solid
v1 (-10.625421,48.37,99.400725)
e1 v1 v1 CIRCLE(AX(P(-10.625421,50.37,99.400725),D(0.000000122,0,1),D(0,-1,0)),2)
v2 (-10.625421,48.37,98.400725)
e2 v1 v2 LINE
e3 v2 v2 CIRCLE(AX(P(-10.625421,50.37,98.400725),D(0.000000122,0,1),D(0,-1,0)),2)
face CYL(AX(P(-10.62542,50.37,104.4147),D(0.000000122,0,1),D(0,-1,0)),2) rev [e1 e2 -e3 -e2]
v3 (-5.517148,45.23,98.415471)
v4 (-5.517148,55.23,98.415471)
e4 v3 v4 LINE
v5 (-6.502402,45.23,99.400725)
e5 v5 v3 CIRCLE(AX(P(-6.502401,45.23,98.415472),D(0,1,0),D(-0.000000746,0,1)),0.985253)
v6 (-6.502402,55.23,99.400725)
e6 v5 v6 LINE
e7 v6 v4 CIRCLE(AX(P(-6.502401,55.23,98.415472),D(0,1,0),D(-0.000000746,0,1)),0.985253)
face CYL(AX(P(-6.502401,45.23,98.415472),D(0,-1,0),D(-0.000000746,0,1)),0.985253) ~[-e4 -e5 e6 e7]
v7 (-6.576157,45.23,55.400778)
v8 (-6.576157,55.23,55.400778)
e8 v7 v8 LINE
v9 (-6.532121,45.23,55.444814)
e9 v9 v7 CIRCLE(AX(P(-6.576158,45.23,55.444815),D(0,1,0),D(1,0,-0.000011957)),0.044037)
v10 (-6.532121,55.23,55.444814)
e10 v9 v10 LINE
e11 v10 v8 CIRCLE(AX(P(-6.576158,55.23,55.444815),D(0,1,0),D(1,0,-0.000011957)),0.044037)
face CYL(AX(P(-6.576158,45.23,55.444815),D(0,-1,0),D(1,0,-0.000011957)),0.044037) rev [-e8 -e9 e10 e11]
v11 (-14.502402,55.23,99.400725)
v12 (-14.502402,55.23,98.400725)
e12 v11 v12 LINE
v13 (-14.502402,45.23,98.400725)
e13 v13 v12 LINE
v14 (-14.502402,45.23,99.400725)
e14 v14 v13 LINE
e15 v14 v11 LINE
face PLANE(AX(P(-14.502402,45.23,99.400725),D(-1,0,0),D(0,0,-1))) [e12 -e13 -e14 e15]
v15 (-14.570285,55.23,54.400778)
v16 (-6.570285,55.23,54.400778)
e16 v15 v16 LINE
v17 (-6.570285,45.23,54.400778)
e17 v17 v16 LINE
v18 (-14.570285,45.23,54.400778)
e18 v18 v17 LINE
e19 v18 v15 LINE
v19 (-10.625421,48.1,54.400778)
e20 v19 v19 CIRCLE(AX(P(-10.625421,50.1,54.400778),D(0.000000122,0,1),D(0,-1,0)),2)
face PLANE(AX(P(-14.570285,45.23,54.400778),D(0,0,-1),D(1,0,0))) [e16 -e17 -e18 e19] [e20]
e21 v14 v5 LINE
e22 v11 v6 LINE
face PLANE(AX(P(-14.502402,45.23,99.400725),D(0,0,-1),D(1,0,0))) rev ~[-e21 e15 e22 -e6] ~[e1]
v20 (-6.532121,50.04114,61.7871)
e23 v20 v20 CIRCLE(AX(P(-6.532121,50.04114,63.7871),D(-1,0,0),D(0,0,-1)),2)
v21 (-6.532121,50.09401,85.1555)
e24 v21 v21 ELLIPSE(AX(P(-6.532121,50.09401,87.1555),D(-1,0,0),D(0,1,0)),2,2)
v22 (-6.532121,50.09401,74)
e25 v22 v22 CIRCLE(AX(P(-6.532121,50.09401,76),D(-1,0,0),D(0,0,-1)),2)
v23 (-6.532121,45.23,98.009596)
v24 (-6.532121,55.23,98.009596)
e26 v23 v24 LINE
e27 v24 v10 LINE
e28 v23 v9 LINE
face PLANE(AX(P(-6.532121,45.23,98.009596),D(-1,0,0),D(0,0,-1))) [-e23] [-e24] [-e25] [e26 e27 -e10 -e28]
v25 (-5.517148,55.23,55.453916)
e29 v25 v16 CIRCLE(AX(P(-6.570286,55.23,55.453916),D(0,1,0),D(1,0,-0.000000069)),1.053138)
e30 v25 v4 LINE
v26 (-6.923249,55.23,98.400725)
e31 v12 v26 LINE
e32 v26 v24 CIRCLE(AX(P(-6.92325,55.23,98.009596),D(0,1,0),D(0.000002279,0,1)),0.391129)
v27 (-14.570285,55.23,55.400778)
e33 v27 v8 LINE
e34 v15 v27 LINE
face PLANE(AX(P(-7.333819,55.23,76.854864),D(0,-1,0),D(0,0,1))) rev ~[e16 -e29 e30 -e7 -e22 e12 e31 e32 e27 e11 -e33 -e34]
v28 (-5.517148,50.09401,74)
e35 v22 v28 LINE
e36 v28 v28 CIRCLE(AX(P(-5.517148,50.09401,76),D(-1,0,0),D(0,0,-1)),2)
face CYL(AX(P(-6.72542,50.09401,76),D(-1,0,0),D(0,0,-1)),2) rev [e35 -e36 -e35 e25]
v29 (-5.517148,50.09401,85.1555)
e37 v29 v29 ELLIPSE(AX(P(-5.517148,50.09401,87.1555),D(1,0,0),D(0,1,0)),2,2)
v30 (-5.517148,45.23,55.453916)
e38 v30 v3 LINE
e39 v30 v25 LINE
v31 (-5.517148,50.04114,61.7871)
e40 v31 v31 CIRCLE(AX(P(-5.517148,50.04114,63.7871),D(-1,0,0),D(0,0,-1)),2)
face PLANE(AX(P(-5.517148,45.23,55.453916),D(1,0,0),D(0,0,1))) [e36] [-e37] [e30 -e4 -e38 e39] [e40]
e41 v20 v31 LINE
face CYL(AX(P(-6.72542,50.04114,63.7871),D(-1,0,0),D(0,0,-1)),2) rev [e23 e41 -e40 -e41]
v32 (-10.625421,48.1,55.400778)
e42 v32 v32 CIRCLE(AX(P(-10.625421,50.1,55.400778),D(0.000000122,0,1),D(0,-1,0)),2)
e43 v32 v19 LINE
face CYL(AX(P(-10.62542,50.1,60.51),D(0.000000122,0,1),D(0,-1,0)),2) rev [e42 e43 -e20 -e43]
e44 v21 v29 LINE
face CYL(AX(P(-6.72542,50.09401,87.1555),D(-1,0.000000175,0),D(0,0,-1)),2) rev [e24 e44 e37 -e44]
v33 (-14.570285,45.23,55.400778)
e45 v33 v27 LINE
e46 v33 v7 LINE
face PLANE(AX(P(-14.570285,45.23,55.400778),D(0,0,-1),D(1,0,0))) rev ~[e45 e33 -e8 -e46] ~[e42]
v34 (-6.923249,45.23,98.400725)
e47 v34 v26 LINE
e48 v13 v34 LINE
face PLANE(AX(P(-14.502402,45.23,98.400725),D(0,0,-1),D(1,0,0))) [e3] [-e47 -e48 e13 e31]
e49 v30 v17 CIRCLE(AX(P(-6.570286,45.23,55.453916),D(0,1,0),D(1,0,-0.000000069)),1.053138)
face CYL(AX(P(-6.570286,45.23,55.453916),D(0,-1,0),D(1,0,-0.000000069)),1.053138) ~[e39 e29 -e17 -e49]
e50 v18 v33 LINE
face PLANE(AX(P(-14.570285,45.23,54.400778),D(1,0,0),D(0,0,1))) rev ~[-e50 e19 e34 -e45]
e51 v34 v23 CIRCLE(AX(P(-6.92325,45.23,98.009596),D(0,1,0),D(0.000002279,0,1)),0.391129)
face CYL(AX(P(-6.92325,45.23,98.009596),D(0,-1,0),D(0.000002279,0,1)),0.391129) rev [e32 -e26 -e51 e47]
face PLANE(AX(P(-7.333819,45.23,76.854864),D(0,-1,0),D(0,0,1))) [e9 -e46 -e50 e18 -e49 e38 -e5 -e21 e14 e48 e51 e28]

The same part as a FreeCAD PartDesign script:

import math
import FreeCAD as App
import Part
import Sketcher

V = App.Vector

doc = App.newDocument("Part")
body = doc.addObject("PartDesign::Body", "Body")

sketch1 = doc.addObject("Sketcher::SketchObject", "Sketch")
body.addObject(sketch1)
sketch1.AttachmentSupport = (doc.XY_Plane, [""])
sketch1.MapMode = "FlatFace"
sketch1.addGeometry(Part.Circle(V(0, 0, 0), V(0, 0, 1), 2), False)
sketch1.addConstraint(Sketcher.Constraint("Coincident", 0, 3, -1, 1))
sketch1.addConstraint(Sketcher.Constraint("Diameter", 0, 4.0))
pad1 = doc.addObject("PartDesign::Pad", "Pad")
body.addObject(pad1)
pad1.Profile = sketch1
pad1.Length = 10
body2 = doc.addObject("PartDesign::Body", "Body001")
doc.recompute()

body.Placement = App.Placement(V(0, 0, 0), App.Rotation(V(0, 1, 0), 90))
boolean = doc.addObject("PartDesign::Boolean", "Boolean")
body2.addObject(boolean)
boolean.Type = "Fuse"
boolean.addObjects([body])
body3 = doc.addObject("PartDesign::Body", "Body002")
doc.recompute()

body2.Placement = App.Placement(V(15.49, 3.9, 4.87), App.Rotation(V(0, 0, 1), 0.000007))
boolean2 = doc.addObject("PartDesign::Boolean", "Boolean001")
body3.addObject(boolean2)
boolean2.Type = "Fuse"
boolean2.addObjects([body2])
body4 = doc.addObject("PartDesign::Body", "Body003")

sketch2 = doc.addObject("Sketcher::SketchObject", "Sketch001")
body4.addObject(sketch2)
sketch2.AttachmentSupport = (doc.getObject("XY_Plane003"), [""])
sketch2.MapMode = "FlatFace"
sketch2.addGeometry(Part.Circle(V(0, 0, 0), V(0, 0, 1), 2), False)
sketch2.addConstraint(Sketcher.Constraint("Coincident", 0, 3, -1, 1))
sketch2.addConstraint(Sketcher.Constraint("Diameter", 0, 4.0))
pad2 = doc.addObject("PartDesign::Pad", "Pad001")
body4.addObject(pad2)
pad2.Profile = sketch2
pad2.Length = 10
body5 = doc.addObject("PartDesign::Body", "Body004")
doc.recompute()

body4.Placement = App.Placement(V(0, 0, 0), App.Rotation(V(0, 1, 0), 90))
boolean3 = doc.addObject("PartDesign::Boolean", "Boolean002")
body5.addObject(boolean3)
boolean3.Type = "Fuse"
boolean3.addObjects([body4])
body6 = doc.addObject("PartDesign::Body", "Body005")
doc.recompute()

body5.Placement = App.Placement(V(-28.4147, 3.9, 5.14), App.Rotation(V(0, 0, 1), 0.000007))
boolean4 = doc.addObject("PartDesign::Boolean", "Boolean003")
body6.addObject(boolean4)
boolean4.Type = "Fuse"
boolean4.addObjects([body5])
body7 = doc.addObject("PartDesign::Body", "Body006")

sketch3 = doc.addObject("Sketcher::SketchObject", "Sketch002")
body7.addObject(sketch3)
sketch3.AttachmentSupport = (doc.getObject("XY_Plane006"), [""])
sketch3.MapMode = "FlatFace"
sketch3.addGeometry(Part.Circle(V(0, 0, 0), V(0, 0, 1), 2), False)
sketch3.addConstraint(Sketcher.Constraint("Coincident", 0, 3, -1, 1))
sketch3.addConstraint(Sketcher.Constraint("Diameter", 0, 4.0))
pad3 = doc.addObject("PartDesign::Pad", "Pad002")
body7.addObject(pad3)
pad3.Profile = sketch3
pad3.Length = 2
body8 = doc.addObject("PartDesign::Body", "Body007")
doc.recompute()

body7.Placement = App.Placement(V(0, 0, 0), App.Rotation(V(1, 0, 0), 271.492946))
boolean5 = doc.addObject("PartDesign::Boolean", "Boolean004")
body8.addObject(boolean5)
boolean5.Type = "Fuse"
boolean5.addObjects([body7])
body9 = doc.addObject("PartDesign::Body", "Body008")
doc.recompute()

body8.Placement = App.Placement(V(0, 0, 0), App.Rotation(V(0, 1, 0), 272.98249))
boolean6 = doc.addObject("PartDesign::Boolean", "Boolean005")
body9.addObject(boolean6)
boolean6.Type = "Fuse"
boolean6.addObjects([body8])
body10 = doc.addObject("PartDesign::Body", "Body009")
doc.recompute()

body9.Placement = App.Placement(V(-26, 5.29, 4.9), App.Rotation(V(0, 0, 1), 267.755985))
boolean7 = doc.addObject("PartDesign::Boolean", "Boolean006")
body10.addObject(boolean7)
boolean7.Type = "Fuse"
boolean7.addObjects([body9])
body11 = doc.addObject("PartDesign::Body", "Body010")

sketch4 = doc.addObject("Sketcher::SketchObject", "Sketch003")
body11.addObject(sketch4)
sketch4.AttachmentSupport = (doc.getObject("XY_Plane010"), [""])
sketch4.MapMode = "FlatFace"
sketch4.addGeometry(Part.Circle(V(0, 0, 0), V(0, 0, 1), 2), False)
sketch4.addConstraint(Sketcher.Constraint("Coincident", 0, 3, -1, 1))
sketch4.addConstraint(Sketcher.Constraint("Diameter", 0, 4.0))
pad4 = doc.addObject("PartDesign::Pad", "Pad003")
body11.addObject(pad4)
pad4.Profile = sketch4
pad4.Length = 2
body12 = doc.addObject("PartDesign::Body", "Body011")
doc.recompute()

body11.Placement = App.Placement(V(-11.1555, 0, 4.86401), App.Rotation(V(1, 0, 0), 90.00001))
boolean8 = doc.addObject("PartDesign::Boolean", "Boolean007")
body12.addObject(boolean8)
boolean8.Type = "Fuse"
boolean8.addObjects([body11])
body13 = doc.addObject("PartDesign::Body", "Body012")

sketch5 = doc.addObject("Sketcher::SketchObject", "Sketch004")
body13.addObject(sketch5)
sketch5.AttachmentSupport = (doc.getObject("XY_Plane012"), [""])
sketch5.MapMode = "FlatFace"
sketch5.addGeometry(Part.Circle(V(0, 0, 0), V(0, 0, 1), 2), False)
sketch5.addConstraint(Sketcher.Constraint("Coincident", 0, 3, -1, 1))
sketch5.addConstraint(Sketcher.Constraint("Diameter", 0, 4.0))
pad5 = doc.addObject("PartDesign::Pad", "Pad004")
body13.addObject(pad5)
pad5.Profile = sketch5
pad5.Length = 2
body14 = doc.addObject("PartDesign::Body", "Body013")
doc.recompute()

body13.Placement = App.Placement(V(0, 0, 0), App.Rotation(V(1, 0, 0), 90))
boolean9 = doc.addObject("PartDesign::Boolean", "Boolean008")
body14.addObject(boolean9)
boolean9.Type = "Fuse"
boolean9.addObjects([body13])
body15 = doc.addObject("PartDesign::Body", "Body014")
doc.recompute()

body14.Placement = App.Placement(V(0, 0, 4.86401), App.Rotation(V(0, 0, 1), 0))
boolean10 = doc.addObject("PartDesign::Boolean", "Boolean009")
body15.addObject(boolean10)
boolean10.Type = "Fuse"
boolean10.addObjects([body14])
body16 = doc.addObject("PartDesign::Body", "Body015")

sketch6 = doc.addObject("Sketcher::SketchObject", "Sketch005")
body16.addObject(sketch6)
sketch6.AttachmentSupport = (doc.getObject("XY_Plane015"), [""])
sketch6.MapMode = "FlatFace"
sketch6.addGeometry(Part.Circle(V(0, 0, 0), V(0, 0, 1), 2), False)
sketch6.addConstraint(Sketcher.Constraint("Coincident", 0, 3, -1, 1))
sketch6.addConstraint(Sketcher.Constraint("Diameter", 0, 4.0))
pad6 = doc.addObject("PartDesign::Pad", "Pad005")
body16.addObject(pad6)
pad6.Profile = sketch6
pad6.Length = 2
body17 = doc.addObject("PartDesign::Body", "Body016")
doc.recompute()

body16.Placement = App.Placement(V(0, 0, 0), App.Rotation(V(1, 0, 0), 90))
boolean11 = doc.addObject("PartDesign::Boolean", "Boolean010")
body17.addObject(boolean11)
boolean11.Type = "Fuse"
boolean11.addObjects([body16])
body18 = doc.addObject("PartDesign::Body", "Body017")
doc.recompute()

body17.Placement = App.Placement(V(12.2129, 0, 4.81114), App.Rotation(V(0, 0, 1), 0))
boolean12 = doc.addObject("PartDesign::Boolean", "Boolean011")
body18.addObject(boolean12)
boolean12.Type = "Fuse"
boolean12.addObjects([body17])
body19 = doc.addObject("PartDesign::Body", "Body018")

sketch7 = doc.addObject("Sketcher::SketchObject", "Sketch006")
body19.addObject(sketch7)
sketch7.AttachmentSupport = (doc.getObject("XY_Plane018"), [""])
sketch7.MapMode = "FlatFace"
sketch7.addGeometry(Part.Circle(V(0, 0, 0), V(0, 0, 1), 2), False)
sketch7.addConstraint(Sketcher.Constraint("Coincident", 0, 3, -1, 1))
sketch7.addConstraint(Sketcher.Constraint("Diameter", 0, 4.0))
pad7 = doc.addObject("PartDesign::Pad", "Pad006")
body19.addObject(pad7)
pad7.Profile = sketch7
pad7.Length = 2
body20 = doc.addObject("PartDesign::Body", "Body019")
doc.recompute()

body19.Placement = App.Placement(V(0, 0, 0), App.Rotation(V(1, 0, 0), 271.492946))
boolean13 = doc.addObject("PartDesign::Boolean", "Boolean012")
body20.addObject(boolean13)
boolean13.Type = "Fuse"
boolean13.addObjects([body19])
body21 = doc.addObject("PartDesign::Body", "Body020")
doc.recompute()

body20.Placement = App.Placement(V(0, 0, 0), App.Rotation(V(0, 1, 0), 272.98249))
boolean14 = doc.addObject("PartDesign::Boolean", "Boolean013")
body21.addObject(boolean14)
boolean14.Type = "Fuse"
boolean14.addObjects([body20])
body22 = doc.addObject("PartDesign::Body", "Body021")
doc.recompute()

body21.Placement = App.Placement(V(25, 5.38, 4.9), App.Rotation(V(0, 0, 1), 267.755985))
boolean15 = doc.addObject("PartDesign::Boolean", "Boolean014")
body22.addObject(boolean15)
boolean15.Type = "Fuse"
boolean15.addObjects([body21])
body23 = doc.addObject("PartDesign::Body", "Body022")

sketch8 = doc.addObject("Sketcher::SketchObject", "Sketch007")
body23.addObject(sketch8)
sketch8.AttachmentSupport = (doc.getObject("XY_Plane022"), [""])
sketch8.MapMode = "FlatFace"
sketch8.addGeometry(Part.LineSegment(V(-22.415471, -1.208272, 0), V(20.546084, -1.208272, 0)), False)
sketch8.addGeometry(Part.ArcOfCircle(Part.Circle(V(20.546084, -0.155134, 0), V(0, 0, 1), 1.053138), math.radians(-89.999996), math.radians(-0.000058)), False)
sketch8.addGeometry(Part.LineSegment(V(21.599222, -0.155135, 0), V(21.599222, 7.844865, 0)), False)
sketch8.addGeometry(Part.LineSegment(V(21.599222, 7.844865, 0), V(20.599222, 7.844865, 0)), False)
sketch8.addGeometry(Part.LineSegment(V(20.599222, 7.844865, 0), V(20.599222, -0.149263, 0)), False)
sketch8.addGeometry(Part.ArcOfCircle(Part.Circle(V(20.555185, -0.149262, 0), V(0, 0, 1), 0.044037), math.radians(-89.999314), math.radians(-0.000686)), False)
sketch8.addGeometry(Part.LineSegment(V(20.555186, -0.193299, 0), V(-22.009596, -0.193299, 0)), False)
sketch8.addGeometry(Part.ArcOfCircle(Part.Circle(V(-22.009596, 0.19783, 0), V(0, 0, 1), 0.391129), math.radians(-179.999869), math.radians(-89.999984)), False)
sketch8.addGeometry(Part.LineSegment(V(-22.400725, 0.197829, 0), V(-22.400725, 7.776982, 0)), False)
sketch8.addGeometry(Part.LineSegment(V(-22.400725, 7.776982, 0), V(-23.400725, 7.776982, 0)), False)
sketch8.addGeometry(Part.LineSegment(V(-23.400725, 7.776982, 0), V(-23.400725, -0.223018, 0)), False)
sketch8.addGeometry(Part.ArcOfCircle(Part.Circle(V(-22.415472, -0.223019, 0), V(0, 0, 1), 0.985253), math.radians(179.999957), math.radians(270.000043)), False)
sketch8.addConstraint(Sketcher.Constraint("Tangent", 0, 2, 1, 1))
sketch8.addConstraint(Sketcher.Constraint("Tangent", 1, 2, 2, 1))
sketch8.addConstraint(Sketcher.Constraint("Coincident", 2, 2, 3, 1))
sketch8.addConstraint(Sketcher.Constraint("Coincident", 3, 2, 4, 1))
sketch8.addConstraint(Sketcher.Constraint("Coincident", 4, 2, 5, 2))
sketch8.addConstraint(Sketcher.Constraint("Coincident", 5, 1, 6, 1))
sketch8.addConstraint(Sketcher.Constraint("Tangent", 6, 2, 7, 2))
sketch8.addConstraint(Sketcher.Constraint("Coincident", 7, 1, 8, 1))
sketch8.addConstraint(Sketcher.Constraint("Coincident", 8, 2, 9, 1))
sketch8.addConstraint(Sketcher.Constraint("Coincident", 9, 2, 10, 1))
sketch8.addConstraint(Sketcher.Constraint("Tangent", 10, 2, 11, 1))
sketch8.addConstraint(Sketcher.Constraint("Tangent", 11, 2, 0, 1))
sketch8.addConstraint(Sketcher.Constraint("Horizontal", 0))
sketch8.addConstraint(Sketcher.Constraint("Vertical", 2))
sketch8.addConstraint(Sketcher.Constraint("Horizontal", 3))
sketch8.addConstraint(Sketcher.Constraint("Vertical", 4))
sketch8.addConstraint(Sketcher.Constraint("Horizontal", 6))
sketch8.addConstraint(Sketcher.Constraint("Vertical", 8))
sketch8.addConstraint(Sketcher.Constraint("Horizontal", 9))
sketch8.addConstraint(Sketcher.Constraint("Vertical", 10))
sketch8.addConstraint(Sketcher.Constraint("Horizontal", 5, 3, 4, 2))
sketch8.addConstraint(Sketcher.Constraint("Equal", 3, 9))
sketch8.addConstraint(Sketcher.Constraint("Equal", 2, 10))
sketch8.addConstraint(Sketcher.Constraint("DistanceX", 3, 2, 3, 1, 1.0))
sketch8.addConstraint(Sketcher.Constraint("DistanceY", 2, 1, 2, 2, 8.0))
sketch8.addConstraint(Sketcher.Constraint("Radius", 1, 1.053138))
sketch8.addConstraint(Sketcher.Constraint("Radius", 7, 0.391129))
sketch8.addConstraint(Sketcher.Constraint("Radius", 5, 0.044037))
sketch8.addConstraint(Sketcher.Constraint("Radius", 11, 0.985253))
sketch8.addConstraint(Sketcher.Constraint("DistanceX", 6, 2, 6, 1, 42.564782))
sketch8.addConstraint(Sketcher.Constraint("DistanceY", 4, 2, 4, 1, 7.994128))
sketch8.addConstraint(Sketcher.Constraint("DistanceY", 5, 1, -1, 1, 0.193299))
sketch8.addConstraint(Sketcher.Constraint("DistanceX", 0, 2, 5, 1, 0.009102))
sketch8.addConstraint(Sketcher.Constraint("DistanceY", 11, 2, 7, 1, 1.406101))
sketch8.addConstraint(Sketcher.Constraint("DistanceX", 11, 3, -1, 1, 22.415472))
pad8 = doc.addObject("PartDesign::Pad", "Pad007")
body23.addObject(pad8)
pad8.Profile = sketch8
pad8.Length = 10
doc.recompute()

boolean16 = doc.addObject("PartDesign::Boolean", "Boolean015")
body23.addObject(boolean16)
boolean16.Type = "Cut"
boolean16.addObjects([body22])
doc.recompute()

boolean17 = doc.addObject("PartDesign::Boolean", "Boolean016")
body23.addObject(boolean17)
boolean17.Type = "Cut"
boolean17.addObjects([body18])
doc.recompute()

boolean18 = doc.addObject("PartDesign::Boolean", "Boolean017")
body23.addObject(boolean18)
boolean18.Type = "Cut"
boolean18.addObjects([body15])
doc.recompute()

boolean19 = doc.addObject("PartDesign::Boolean", "Boolean018")
body23.addObject(boolean19)
boolean19.Type = "Cut"
boolean19.addObjects([body12])
doc.recompute()

boolean20 = doc.addObject("PartDesign::Boolean", "Boolean019")
body23.addObject(boolean20)
boolean20.Type = "Cut"
boolean20.addObjects([body10])
doc.recompute()

boolean21 = doc.addObject("PartDesign::Boolean", "Boolean020")
body23.addObject(boolean21)
boolean21.Type = "Cut"
boolean21.addObjects([body6])
doc.recompute()

boolean22 = doc.addObject("PartDesign::Boolean", "Boolean021")
body23.addObject(boolean22)
boolean22.Type = "Cut"
boolean22.addObjects([body3])
body24 = doc.addObject("PartDesign::Body", "Body023")
doc.recompute()

body23.Placement = App.Placement(V(0, 0, 0), App.Rotation(V(0, 1, 0), 90))
boolean23 = doc.addObject("PartDesign::Boolean", "Boolean022")
body24.addObject(boolean23)
boolean23.Type = "Fuse"
boolean23.addObjects([body23])
body25 = doc.addObject("PartDesign::Body", "Body024")
doc.recompute()

body24.Placement = App.Placement(V(-6.72542, 45.23, 76), App.Rotation(V(0, 0, 1), 90))
boolean24 = doc.addObject("PartDesign::Boolean", "Boolean023")
body25.addObject(boolean24)
boolean24.Type = "Fuse"
boolean24.addObjects([body24])

doc.recompute()
